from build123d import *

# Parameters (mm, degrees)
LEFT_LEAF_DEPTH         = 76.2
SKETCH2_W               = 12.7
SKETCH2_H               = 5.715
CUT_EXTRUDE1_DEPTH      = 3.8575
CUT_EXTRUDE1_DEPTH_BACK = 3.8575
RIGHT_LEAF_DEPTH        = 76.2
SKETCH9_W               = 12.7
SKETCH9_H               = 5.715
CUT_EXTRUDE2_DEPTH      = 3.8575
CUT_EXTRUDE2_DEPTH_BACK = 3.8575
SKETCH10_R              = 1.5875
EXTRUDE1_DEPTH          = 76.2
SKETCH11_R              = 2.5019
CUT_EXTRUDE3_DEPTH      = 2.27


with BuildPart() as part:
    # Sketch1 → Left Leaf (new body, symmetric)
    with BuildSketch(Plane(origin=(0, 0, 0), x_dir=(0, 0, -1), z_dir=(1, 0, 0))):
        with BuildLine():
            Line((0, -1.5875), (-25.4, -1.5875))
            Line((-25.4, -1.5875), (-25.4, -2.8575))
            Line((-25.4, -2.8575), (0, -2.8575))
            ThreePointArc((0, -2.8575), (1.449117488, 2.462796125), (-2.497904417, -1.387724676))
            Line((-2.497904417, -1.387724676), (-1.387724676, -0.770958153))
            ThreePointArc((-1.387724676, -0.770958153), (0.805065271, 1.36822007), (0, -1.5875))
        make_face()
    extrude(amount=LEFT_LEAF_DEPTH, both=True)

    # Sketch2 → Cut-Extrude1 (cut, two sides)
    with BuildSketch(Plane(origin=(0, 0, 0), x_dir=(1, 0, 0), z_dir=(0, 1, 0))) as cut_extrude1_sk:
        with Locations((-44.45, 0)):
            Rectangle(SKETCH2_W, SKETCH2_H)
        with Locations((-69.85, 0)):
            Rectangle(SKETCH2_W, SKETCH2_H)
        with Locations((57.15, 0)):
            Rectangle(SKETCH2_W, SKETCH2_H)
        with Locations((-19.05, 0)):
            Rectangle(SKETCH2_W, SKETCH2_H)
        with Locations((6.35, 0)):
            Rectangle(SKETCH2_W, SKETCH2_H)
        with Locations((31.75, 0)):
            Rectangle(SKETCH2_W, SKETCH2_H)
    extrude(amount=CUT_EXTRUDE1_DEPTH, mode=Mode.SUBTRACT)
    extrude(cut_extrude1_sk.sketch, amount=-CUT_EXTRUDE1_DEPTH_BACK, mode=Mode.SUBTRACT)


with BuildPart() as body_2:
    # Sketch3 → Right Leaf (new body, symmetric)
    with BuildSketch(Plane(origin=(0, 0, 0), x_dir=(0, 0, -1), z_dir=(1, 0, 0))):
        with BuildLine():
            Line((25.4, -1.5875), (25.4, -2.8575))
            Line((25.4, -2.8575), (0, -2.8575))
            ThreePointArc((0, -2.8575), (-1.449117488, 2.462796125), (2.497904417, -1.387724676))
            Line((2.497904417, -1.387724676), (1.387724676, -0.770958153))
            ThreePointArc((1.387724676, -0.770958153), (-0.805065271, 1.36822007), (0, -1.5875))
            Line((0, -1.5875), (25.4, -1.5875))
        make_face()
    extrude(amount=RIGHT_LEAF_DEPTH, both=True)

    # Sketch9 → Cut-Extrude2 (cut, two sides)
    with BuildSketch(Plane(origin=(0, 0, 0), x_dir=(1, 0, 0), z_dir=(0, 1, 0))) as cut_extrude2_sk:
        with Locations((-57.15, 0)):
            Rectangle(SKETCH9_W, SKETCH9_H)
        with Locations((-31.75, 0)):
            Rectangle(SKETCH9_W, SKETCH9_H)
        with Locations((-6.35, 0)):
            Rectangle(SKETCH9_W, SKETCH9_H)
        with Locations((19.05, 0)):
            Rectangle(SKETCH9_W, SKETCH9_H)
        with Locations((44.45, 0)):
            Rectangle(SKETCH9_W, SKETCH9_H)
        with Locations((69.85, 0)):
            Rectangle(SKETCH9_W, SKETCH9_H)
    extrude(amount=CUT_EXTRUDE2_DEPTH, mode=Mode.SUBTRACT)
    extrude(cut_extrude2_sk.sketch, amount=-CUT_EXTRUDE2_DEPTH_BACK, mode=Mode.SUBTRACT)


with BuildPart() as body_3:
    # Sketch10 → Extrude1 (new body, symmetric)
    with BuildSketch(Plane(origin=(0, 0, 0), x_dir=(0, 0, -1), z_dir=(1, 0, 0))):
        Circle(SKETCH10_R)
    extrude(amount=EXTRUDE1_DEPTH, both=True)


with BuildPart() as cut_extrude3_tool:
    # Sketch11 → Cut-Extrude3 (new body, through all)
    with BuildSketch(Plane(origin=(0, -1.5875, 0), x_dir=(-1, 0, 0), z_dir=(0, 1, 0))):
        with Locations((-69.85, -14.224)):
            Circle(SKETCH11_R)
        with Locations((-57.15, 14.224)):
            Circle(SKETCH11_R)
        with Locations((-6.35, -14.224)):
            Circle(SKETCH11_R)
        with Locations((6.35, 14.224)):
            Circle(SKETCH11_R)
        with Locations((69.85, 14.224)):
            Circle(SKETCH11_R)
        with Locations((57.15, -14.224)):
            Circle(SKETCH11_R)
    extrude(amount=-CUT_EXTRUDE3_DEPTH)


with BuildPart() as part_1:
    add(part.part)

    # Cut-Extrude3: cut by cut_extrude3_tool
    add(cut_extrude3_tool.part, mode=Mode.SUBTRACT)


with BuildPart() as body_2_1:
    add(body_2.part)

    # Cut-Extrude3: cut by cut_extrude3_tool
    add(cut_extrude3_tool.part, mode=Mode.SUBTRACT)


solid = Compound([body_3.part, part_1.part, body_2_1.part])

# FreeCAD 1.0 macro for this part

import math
import FreeCAD as App
import Part
import Sketcher
Q = App.Units.Quantity


def add_polygon(sketch, points):
    """Adds a closed chain of lines whose ends are joined by coincident constraints."""
    first, n = sketch.GeometryCount, len(points)
    for a, b in zip(points, points[1:] + points[:1]):
        sketch.addGeometry(Part.LineSegment(App.Vector(*a, 0), App.Vector(*b, 0)), False)
    for i in range(n):
        sketch.addConstraint(Sketcher.Constraint("Coincident", first + i, 2, first + (i + 1) % n, 1))

doc = App.newDocument("Part")
body = doc.addObject("PartDesign::Body", "Body")

sketch1 = doc.addObject("Sketcher::SketchObject", "Sketch")
body.addObject(sketch1)
sketch1.AttachmentSupport = (doc.YZ_Plane, [""])
sketch1.MapMode = "FlatFace"
sketch1.addGeometry(Part.LineSegment(App.Vector(-1.6, 0, 0), App.Vector(-1.6, 25.4, 0)), False)
sketch1.addGeometry(Part.LineSegment(App.Vector(-1.6, 25.4, 0), App.Vector(-2.9, 25.4, 0)), False)
sketch1.addGeometry(Part.LineSegment(App.Vector(-2.9, 25.4, 0), App.Vector(-2.9, 0, 0)), False)
sketch1.addGeometry(Part.ArcOfCircle(Part.Circle(App.Vector(0, 0, 0), App.Vector(0, 0, 1), 2.9), math.radians(-180), math.radians(119)), False)
sketch1.addGeometry(Part.LineSegment(App.Vector(-1.4, 2.5, 0), App.Vector(-0.8, 1.4, 0)), False)
sketch1.addGeometry(Part.ArcOfCircle(Part.Circle(App.Vector(0, 0, 0), App.Vector(0, 0, 1), 1.6), math.radians(180), math.radians(479)), False)
sketch1.addConstraint(Sketcher.Constraint("Coincident", 0, 2, 1, 1))
sketch1.addConstraint(Sketcher.Constraint("Coincident", 1, 2, 2, 1))
sketch1.addConstraint(Sketcher.Constraint("Tangent", 2, 2, 3, 1))
sketch1.addConstraint(Sketcher.Constraint("Coincident", 3, 2, 4, 1))
sketch1.addConstraint(Sketcher.Constraint("Coincident", 4, 2, 5, 2))
sketch1.addConstraint(Sketcher.Constraint("Tangent", 5, 1, 0, 1))
sketch1.addConstraint(Sketcher.Constraint("Vertical", 0))
sketch1.addConstraint(Sketcher.Constraint("Horizontal", 1))
sketch1.addConstraint(Sketcher.Constraint("Vertical", 2))
sketch1.addConstraint(Sketcher.Constraint("Coincident", 3, 3, -1, 1))
sketch1.addConstraint(Sketcher.Constraint("Coincident", 5, 3, -1, 1))
sketch1.addConstraint(Sketcher.Constraint("DistanceY", 0, 1, 0, 2, Q("1 in")))
sketch1.addConstraint(Sketcher.Constraint("Radius", 5, Q("0.0625 in")))
sketch1.addConstraint(Sketcher.Constraint("DistanceX", 1, 2, 1, 1, Q("0.05 in")))
sketch1.addConstraint(Sketcher.Constraint("DistanceX", 4, 2, -1, 1, 0.770958))
sketch1.addConstraint(Sketcher.Constraint("DistanceY", 4, 2, 3, 2, 1.11018))
pad1 = doc.addObject("PartDesign::Pad", "Pad")
body.addObject(pad1)
pad1.Profile = sketch1
pad1.Length = Q("6 in")
pad1.Midplane = True

sketch2 = doc.addObject("Sketcher::SketchObject", "Sketch001")
body.addObject(sketch2)
sketch2.AttachmentSupport = (doc.XZ_Plane, [""])
sketch2.MapMode = "FlatFace"
add_polygon(sketch2, [(-51, -3), (-51, 3), (-38, 3), (-38, -3)])
add_polygon(sketch2, [(-76, -3), (-76, 3), (-64, 3), (-64, -3)])
add_polygon(sketch2, [(51, -3), (51, 3), (64, 3), (64, -3)])
add_polygon(sketch2, [(-25, -3), (-25, 3), (-13, 3), (-13, -3)])
add_polygon(sketch2, [(0, -3), (0, 3), (13, 3), (13, -3)])
add_polygon(sketch2, [(25, -3), (25, 3), (38, 3), (38, -3)])
sketch2.addConstraint(Sketcher.Constraint("Vertical", 0))
sketch2.addConstraint(Sketcher.Constraint("Horizontal", 1))
sketch2.addConstraint(Sketcher.Constraint("Vertical", 2))
sketch2.addConstraint(Sketcher.Constraint("Horizontal", 3))
sketch2.addConstraint(Sketcher.Constraint("Vertical", 4))
sketch2.addConstraint(Sketcher.Constraint("Horizontal", 5))
sketch2.addConstraint(Sketcher.Constraint("Vertical", 6))
sketch2.addConstraint(Sketcher.Constraint("Horizontal", 7))
sketch2.addConstraint(Sketcher.Constraint("Vertical", 8))
sketch2.addConstraint(Sketcher.Constraint("Horizontal", 9))
sketch2.addConstraint(Sketcher.Constraint("Vertical", 10))
sketch2.addConstraint(Sketcher.Constraint("Horizontal", 11))
sketch2.addConstraint(Sketcher.Constraint("Vertical", 12))
sketch2.addConstraint(Sketcher.Constraint("Horizontal", 13))
sketch2.addConstraint(Sketcher.Constraint("Vertical", 14))
sketch2.addConstraint(Sketcher.Constraint("Horizontal", 15))
sketch2.addConstraint(Sketcher.Constraint("Vertical", 16))
sketch2.addConstraint(Sketcher.Constraint("Horizontal", 17))
sketch2.addConstraint(Sketcher.Constraint("Vertical", 18))
sketch2.addConstraint(Sketcher.Constraint("Horizontal", 19))
sketch2.addConstraint(Sketcher.Constraint("Vertical", 20))
sketch2.addConstraint(Sketcher.Constraint("Horizontal", 21))
sketch2.addConstraint(Sketcher.Constraint("Vertical", 22))
sketch2.addConstraint(Sketcher.Constraint("Horizontal", 23))
sketch2.addConstraint(Sketcher.Constraint("Symmetric", 3, 2, 8, 2, -1, 1))
sketch2.addConstraint(Sketcher.Constraint("Symmetric", 6, 2, 9, 2, -1, 1))
sketch2.addConstraint(Sketcher.Constraint("Symmetric", 14, 2, 17, 2, -1, 1))
sketch2.addConstraint(Sketcher.Constraint("Symmetric", 16, 2, 19, 2, -1, 1))
sketch2.addConstraint(Sketcher.Constraint("Symmetric", 15, 2, 20, 2, -1, 1))
sketch2.addConstraint(Sketcher.Constraint("Symmetric", 2, 2, 21, 2, -1, 1))
sketch2.addConstraint(Sketcher.Constraint("Horizontal", 1, 2, 4, 2))
sketch2.addConstraint(Sketcher.Constraint("Horizontal", 5, 2, 8, 2))
sketch2.addConstraint(Sketcher.Constraint("Horizontal", 7, 2, 10, 2))
sketch2.addConstraint(Sketcher.Constraint("Horizontal", 9, 2, 12, 2))
sketch2.addConstraint(Sketcher.Constraint("Horizontal", 19, 2, 22, 2))
sketch2.addConstraint(Sketcher.Constraint("Equal", 3, 5))
sketch2.addConstraint(Sketcher.Constraint("Equal", 7, 9))
sketch2.addConstraint(Sketcher.Constraint("Equal", 11, 13))
sketch2.addConstraint(Sketcher.Constraint("Equal", 15, 17))
sketch2.addConstraint(Sketcher.Constraint("Equal", 19, 21))
sketch2.addConstraint(Sketcher.Constraint("DistanceX", 1, 1, 1, 2, Q("0.5 in")))
sketch2.addConstraint(Sketcher.Constraint("DistanceY", 0, 1, 0, 2, Q("0.225 in")))
pocket1 = doc.addObject("PartDesign::Pocket", "Pocket")
body.addObject(pocket1)
pocket1.Profile = sketch2
pocket1.Type = "ThroughAll"
pocket1.Midplane = True
body2 = doc.addObject("PartDesign::Body", "Body001")

sketch3 = doc.addObject("Sketcher::SketchObject", "Sketch002")
body2.addObject(sketch3)
sketch3.AttachmentSupport = (doc.getObject("YZ_Plane001"), [""])
sketch3.MapMode = "FlatFace"
sketch3.addGeometry(Part.LineSegment(App.Vector(-2.9, -25.4, 0), App.Vector(-1.6, -25.4, 0)), False)
sketch3.addGeometry(Part.LineSegment(App.Vector(-1.6, -25.4, 0), App.Vector(-1.6, 0, 0)), False)
sketch3.addGeometry(Part.ArcOfCircle(Part.Circle(App.Vector(0, 0, 0), App.Vector(0, 0, 1), 1.6), math.radians(-119), math.radians(180)), False)
sketch3.addGeometry(Part.LineSegment(App.Vector(-0.8, -1.4, 0), App.Vector(-1.4, -2.5, 0)), False)
sketch3.addGeometry(Part.ArcOfCircle(Part.Circle(App.Vector(0, 0, 0), App.Vector(0, 0, 1), 2.9), math.radians(-119), math.radians(180)), False)
sketch3.addGeometry(Part.LineSegment(App.Vector(-2.9, 0, 0), App.Vector(-2.9, -25.4, 0)), False)
sketch3.addConstraint(Sketcher.Constraint("Coincident", 0, 2, 1, 1))
sketch3.addConstraint(Sketcher.Constraint("Tangent", 1, 2, 2, 2))
sketch3.addConstraint(Sketcher.Constraint("Coincident", 2, 1, 3, 1))
sketch3.addConstraint(Sketcher.Constraint("Coincident", 3, 2, 4, 1))
sketch3.addConstraint(Sketcher.Constraint("Tangent", 4, 2, 5, 1))
sketch3.addConstraint(Sketcher.Constraint("Coincident", 5, 2, 0, 1))
sketch3.addConstraint(Sketcher.Constraint("Horizontal", 0))
sketch3.addConstraint(Sketcher.Constraint("Vertical", 1))
sketch3.addConstraint(Sketcher.Constraint("Vertical", 5))
sketch3.addConstraint(Sketcher.Constraint("Coincident", 2, 3, -1, 1))
sketch3.addConstraint(Sketcher.Constraint("Coincident", 4, 3, -1, 1))
sketch3.addConstraint(Sketcher.Constraint("DistanceY", 1, 1, 1, 2, Q("1 in")))
sketch3.addConstraint(Sketcher.Constraint("Radius", 2, Q("0.0625 in")))
sketch3.addConstraint(Sketcher.Constraint("DistanceX", 0, 1, 0, 2, Q("0.05 in")))
sketch3.addConstraint(Sketcher.Constraint("DistanceX", 2, 1, -1, 1, 0.770958))
sketch3.addConstraint(Sketcher.Constraint("DistanceY", 3, 2, 2, 1, 1.11018))
pad2 = doc.addObject("PartDesign::Pad", "Pad001")
body2.addObject(pad2)
pad2.Profile = sketch3
pad2.Length = Q("6 in")
pad2.Midplane = True

sketch4 = doc.addObject("Sketcher::SketchObject", "Sketch003")
body2.addObject(sketch4)
sketch4.AttachmentSupport = (doc.getObject("XZ_Plane001"), [""])
sketch4.MapMode = "FlatFace"
add_polygon(sketch4, [(-64, -3), (-64, 3), (-51, 3), (-51, -3)])
add_polygon(sketch4, [(-38, -3), (-38, 3), (-25, 3), (-25, -3)])
add_polygon(sketch4, [(-13, -3), (-13, 3), (0, 3), (0, -3)])
add_polygon(sketch4, [(13, -3), (13, 3), (25, 3), (25, -3)])
add_polygon(sketch4, [(38, -3), (38, 3), (51, 3), (51, -3)])
add_polygon(sketch4, [(64, -3), (64, 3), (76, 3), (76, -3)])
sketch4.addConstraint(Sketcher.Constraint("Vertical", 0))
sketch4.addConstraint(Sketcher.Constraint("Horizontal", 1))
sketch4.addConstraint(Sketcher.Constraint("Vertical", 2))
sketch4.addConstraint(Sketcher.Constraint("Horizontal", 3))
sketch4.addConstraint(Sketcher.Constraint("Vertical", 4))
sketch4.addConstraint(Sketcher.Constraint("Horizontal", 5))
sketch4.addConstraint(Sketcher.Constraint("Vertical", 6))
sketch4.addConstraint(Sketcher.Constraint("Horizontal", 7))
sketch4.addConstraint(Sketcher.Constraint("Vertical", 8))
sketch4.addConstraint(Sketcher.Constraint("Horizontal", 9))
sketch4.addConstraint(Sketcher.Constraint("Vertical", 10))
sketch4.addConstraint(Sketcher.Constraint("Horizontal", 11))
sketch4.addConstraint(Sketcher.Constraint("Vertical", 12))
sketch4.addConstraint(Sketcher.Constraint("Horizontal", 13))
sketch4.addConstraint(Sketcher.Constraint("Vertical", 14))
sketch4.addConstraint(Sketcher.Constraint("Horizontal", 15))
sketch4.addConstraint(Sketcher.Constraint("Vertical", 16))
sketch4.addConstraint(Sketcher.Constraint("Horizontal", 17))
sketch4.addConstraint(Sketcher.Constraint("Vertical", 18))
sketch4.addConstraint(Sketcher.Constraint("Horizontal", 19))
sketch4.addConstraint(Sketcher.Constraint("Vertical", 20))
sketch4.addConstraint(Sketcher.Constraint("Horizontal", 21))
sketch4.addConstraint(Sketcher.Constraint("Vertical", 22))
sketch4.addConstraint(Sketcher.Constraint("Horizontal", 23))
sketch4.addConstraint(Sketcher.Constraint("Symmetric", 9, 2, 10, 2, -1, 1))
sketch4.addConstraint(Sketcher.Constraint("Symmetric", 11, 2, 12, 2, -1, 1))
sketch4.addConstraint(Sketcher.Constraint("Symmetric", 6, 2, 13, 2, -1, 1))
sketch4.addConstraint(Sketcher.Constraint("Symmetric", 7, 2, 16, 2, -1, 1))
sketch4.addConstraint(Sketcher.Constraint("Symmetric", 2, 2, 17, 2, -1, 1))
sketch4.addConstraint(Sketcher.Constraint("Symmetric", 3, 2, 20, 2, -1, 1))
sketch4.addConstraint(Sketcher.Constraint("Horizontal", 1, 2, 4, 2))
sketch4.addConstraint(Sketcher.Constraint("Horizontal", 5, 2, 8, 2))
sketch4.addConstraint(Sketcher.Constraint("Horizontal", 11, 2, 14, 2))
sketch4.addConstraint(Sketcher.Constraint("Horizontal", 15, 2, 18, 2))
sketch4.addConstraint(Sketcher.Constraint("Horizontal", 19, 2, 22, 2))
sketch4.addConstraint(Sketcher.Constraint("Equal", 3, 5))
sketch4.addConstraint(Sketcher.Constraint("Equal", 7, 9))
sketch4.addConstraint(Sketcher.Constraint("Equal", 11, 13))
sketch4.addConstraint(Sketcher.Constraint("Equal", 15, 17))
sketch4.addConstraint(Sketcher.Constraint("Equal", 19, 21))
sketch4.addConstraint(Sketcher.Constraint("DistanceX", 1, 1, 1, 2, Q("0.5 in")))
sketch4.addConstraint(Sketcher.Constraint("DistanceY", 0, 1, 0, 2, Q("0.225 in")))
pocket2 = doc.addObject("PartDesign::Pocket", "Pocket001")
body2.addObject(pocket2)
pocket2.Profile = sketch4
pocket2.Type = "ThroughAll"
pocket2.Midplane = True
body3 = doc.addObject("PartDesign::Body", "Body002")

sketch5 = doc.addObject("Sketcher::SketchObject", "Sketch004")
body3.addObject(sketch5)
sketch5.AttachmentSupport = (doc.getObject("YZ_Plane002"), [""])
sketch5.MapMode = "FlatFace"
sketch5.addGeometry(Part.Circle(App.Vector(0, 0, 0), App.Vector(0, 0, 1), 1.6), False)
sketch5.addConstraint(Sketcher.Constraint("Coincident", 0, 3, -1, 1))
sketch5.addConstraint(Sketcher.Constraint("Diameter", 0, Q("0.125 in")))
pad3 = doc.addObject("PartDesign::Pad", "Pad002")
body3.addObject(pad3)
pad3.Profile = sketch5
pad3.Length = Q("6 in")
pad3.Midplane = True
body4 = doc.addObject("PartDesign::Body", "Body003")
body4.AllowCompound = True

sketch6 = doc.addObject("Sketcher::SketchObject", "Sketch005")
body4.addObject(sketch6)
sketch6.AttachmentSupport = (doc.getObject("XZ_Plane003"), [""])
sketch6.MapMode = "FlatFace"
sketch6.AttachmentOffset = App.Placement(App.Vector(0, 0, 0.0625 * 25.4), App.Rotation())
sketch6.addGeometry(Part.Circle(App.Vector(69.8, -14.2, 0), App.Vector(0, 0, 1), 2.5), False)
sketch6.addGeometry(Part.Circle(App.Vector(57.1, 14.2, 0), App.Vector(0, 0, 1), 2.5), False)
sketch6.addGeometry(Part.Circle(App.Vector(6.3, -14.2, 0), App.Vector(0, 0, 1), 2.5), False)
sketch6.addGeometry(Part.Circle(App.Vector(-6.3, 14.2, 0), App.Vector(0, 0, 1), 2.5), False)
sketch6.addGeometry(Part.Circle(App.Vector(-69.8, 14.2, 0), App.Vector(0, 0, 1), 2.5), False)
sketch6.addGeometry(Part.Circle(App.Vector(-57.1, -14.2, 0), App.Vector(0, 0, 1), 2.5), False)
sketch6.addConstraint(Sketcher.Constraint("Equal", 0, 1))
sketch6.addConstraint(Sketcher.Constraint("Equal", 1, 2))
sketch6.addConstraint(Sketcher.Constraint("Equal", 2, 3))
sketch6.addConstraint(Sketcher.Constraint("Equal", 3, 4))
sketch6.addConstraint(Sketcher.Constraint("Equal", 4, 5))
sketch6.addConstraint(Sketcher.Constraint("Symmetric", 2, 3, 3, 3, -1, 1))
sketch6.addConstraint(Sketcher.Constraint("Symmetric", 0, 3, 4, 3, -1, 1))
sketch6.addConstraint(Sketcher.Constraint("Symmetric", 1, 3, 5, 3, -1, 1))
sketch6.addConstraint(Sketcher.Constraint("Horizontal", 0, 3, 2, 3))
sketch6.addConstraint(Sketcher.Constraint("Horizontal", 1, 3, 3, 3))
sketch6.addConstraint(Sketcher.Constraint("Diameter", 0, Q("0.197 in")))
sketch6.addConstraint(Sketcher.Constraint("DistanceX", 2, 3, 1, 3, Q("2 in")))
sketch6.addConstraint(Sketcher.Constraint("DistanceX", 3, 3, 0, 3, Q("3 in")))
sketch6.addConstraint(Sketcher.Constraint("DistanceX", 1, 3, 0, 3, Q("0.5 in")))
sketch6.addConstraint(Sketcher.Constraint("DistanceY", 0, 3, -1, 1, Q("0.56 in")))
pad4 = doc.addObject("PartDesign::Pad", "Pad003")
body4.addObject(pad4)
pad4.Profile = sketch6
pad4.Length = 2.27
doc.recompute()

body5 = doc.addObject("PartDesign::Body", "Body004")
body5.BaseFeature = body4
boolean = doc.addObject("PartDesign::Boolean", "Boolean")
body.addObject(boolean)
boolean.Type = "Cut"
boolean.addObjects([body5])
doc.recompute()

boolean2 = doc.addObject("PartDesign::Boolean", "Boolean001")
body2.addObject(boolean2)
boolean2.Type = "Cut"
boolean2.addObjects([body4])

doc.recompute()
